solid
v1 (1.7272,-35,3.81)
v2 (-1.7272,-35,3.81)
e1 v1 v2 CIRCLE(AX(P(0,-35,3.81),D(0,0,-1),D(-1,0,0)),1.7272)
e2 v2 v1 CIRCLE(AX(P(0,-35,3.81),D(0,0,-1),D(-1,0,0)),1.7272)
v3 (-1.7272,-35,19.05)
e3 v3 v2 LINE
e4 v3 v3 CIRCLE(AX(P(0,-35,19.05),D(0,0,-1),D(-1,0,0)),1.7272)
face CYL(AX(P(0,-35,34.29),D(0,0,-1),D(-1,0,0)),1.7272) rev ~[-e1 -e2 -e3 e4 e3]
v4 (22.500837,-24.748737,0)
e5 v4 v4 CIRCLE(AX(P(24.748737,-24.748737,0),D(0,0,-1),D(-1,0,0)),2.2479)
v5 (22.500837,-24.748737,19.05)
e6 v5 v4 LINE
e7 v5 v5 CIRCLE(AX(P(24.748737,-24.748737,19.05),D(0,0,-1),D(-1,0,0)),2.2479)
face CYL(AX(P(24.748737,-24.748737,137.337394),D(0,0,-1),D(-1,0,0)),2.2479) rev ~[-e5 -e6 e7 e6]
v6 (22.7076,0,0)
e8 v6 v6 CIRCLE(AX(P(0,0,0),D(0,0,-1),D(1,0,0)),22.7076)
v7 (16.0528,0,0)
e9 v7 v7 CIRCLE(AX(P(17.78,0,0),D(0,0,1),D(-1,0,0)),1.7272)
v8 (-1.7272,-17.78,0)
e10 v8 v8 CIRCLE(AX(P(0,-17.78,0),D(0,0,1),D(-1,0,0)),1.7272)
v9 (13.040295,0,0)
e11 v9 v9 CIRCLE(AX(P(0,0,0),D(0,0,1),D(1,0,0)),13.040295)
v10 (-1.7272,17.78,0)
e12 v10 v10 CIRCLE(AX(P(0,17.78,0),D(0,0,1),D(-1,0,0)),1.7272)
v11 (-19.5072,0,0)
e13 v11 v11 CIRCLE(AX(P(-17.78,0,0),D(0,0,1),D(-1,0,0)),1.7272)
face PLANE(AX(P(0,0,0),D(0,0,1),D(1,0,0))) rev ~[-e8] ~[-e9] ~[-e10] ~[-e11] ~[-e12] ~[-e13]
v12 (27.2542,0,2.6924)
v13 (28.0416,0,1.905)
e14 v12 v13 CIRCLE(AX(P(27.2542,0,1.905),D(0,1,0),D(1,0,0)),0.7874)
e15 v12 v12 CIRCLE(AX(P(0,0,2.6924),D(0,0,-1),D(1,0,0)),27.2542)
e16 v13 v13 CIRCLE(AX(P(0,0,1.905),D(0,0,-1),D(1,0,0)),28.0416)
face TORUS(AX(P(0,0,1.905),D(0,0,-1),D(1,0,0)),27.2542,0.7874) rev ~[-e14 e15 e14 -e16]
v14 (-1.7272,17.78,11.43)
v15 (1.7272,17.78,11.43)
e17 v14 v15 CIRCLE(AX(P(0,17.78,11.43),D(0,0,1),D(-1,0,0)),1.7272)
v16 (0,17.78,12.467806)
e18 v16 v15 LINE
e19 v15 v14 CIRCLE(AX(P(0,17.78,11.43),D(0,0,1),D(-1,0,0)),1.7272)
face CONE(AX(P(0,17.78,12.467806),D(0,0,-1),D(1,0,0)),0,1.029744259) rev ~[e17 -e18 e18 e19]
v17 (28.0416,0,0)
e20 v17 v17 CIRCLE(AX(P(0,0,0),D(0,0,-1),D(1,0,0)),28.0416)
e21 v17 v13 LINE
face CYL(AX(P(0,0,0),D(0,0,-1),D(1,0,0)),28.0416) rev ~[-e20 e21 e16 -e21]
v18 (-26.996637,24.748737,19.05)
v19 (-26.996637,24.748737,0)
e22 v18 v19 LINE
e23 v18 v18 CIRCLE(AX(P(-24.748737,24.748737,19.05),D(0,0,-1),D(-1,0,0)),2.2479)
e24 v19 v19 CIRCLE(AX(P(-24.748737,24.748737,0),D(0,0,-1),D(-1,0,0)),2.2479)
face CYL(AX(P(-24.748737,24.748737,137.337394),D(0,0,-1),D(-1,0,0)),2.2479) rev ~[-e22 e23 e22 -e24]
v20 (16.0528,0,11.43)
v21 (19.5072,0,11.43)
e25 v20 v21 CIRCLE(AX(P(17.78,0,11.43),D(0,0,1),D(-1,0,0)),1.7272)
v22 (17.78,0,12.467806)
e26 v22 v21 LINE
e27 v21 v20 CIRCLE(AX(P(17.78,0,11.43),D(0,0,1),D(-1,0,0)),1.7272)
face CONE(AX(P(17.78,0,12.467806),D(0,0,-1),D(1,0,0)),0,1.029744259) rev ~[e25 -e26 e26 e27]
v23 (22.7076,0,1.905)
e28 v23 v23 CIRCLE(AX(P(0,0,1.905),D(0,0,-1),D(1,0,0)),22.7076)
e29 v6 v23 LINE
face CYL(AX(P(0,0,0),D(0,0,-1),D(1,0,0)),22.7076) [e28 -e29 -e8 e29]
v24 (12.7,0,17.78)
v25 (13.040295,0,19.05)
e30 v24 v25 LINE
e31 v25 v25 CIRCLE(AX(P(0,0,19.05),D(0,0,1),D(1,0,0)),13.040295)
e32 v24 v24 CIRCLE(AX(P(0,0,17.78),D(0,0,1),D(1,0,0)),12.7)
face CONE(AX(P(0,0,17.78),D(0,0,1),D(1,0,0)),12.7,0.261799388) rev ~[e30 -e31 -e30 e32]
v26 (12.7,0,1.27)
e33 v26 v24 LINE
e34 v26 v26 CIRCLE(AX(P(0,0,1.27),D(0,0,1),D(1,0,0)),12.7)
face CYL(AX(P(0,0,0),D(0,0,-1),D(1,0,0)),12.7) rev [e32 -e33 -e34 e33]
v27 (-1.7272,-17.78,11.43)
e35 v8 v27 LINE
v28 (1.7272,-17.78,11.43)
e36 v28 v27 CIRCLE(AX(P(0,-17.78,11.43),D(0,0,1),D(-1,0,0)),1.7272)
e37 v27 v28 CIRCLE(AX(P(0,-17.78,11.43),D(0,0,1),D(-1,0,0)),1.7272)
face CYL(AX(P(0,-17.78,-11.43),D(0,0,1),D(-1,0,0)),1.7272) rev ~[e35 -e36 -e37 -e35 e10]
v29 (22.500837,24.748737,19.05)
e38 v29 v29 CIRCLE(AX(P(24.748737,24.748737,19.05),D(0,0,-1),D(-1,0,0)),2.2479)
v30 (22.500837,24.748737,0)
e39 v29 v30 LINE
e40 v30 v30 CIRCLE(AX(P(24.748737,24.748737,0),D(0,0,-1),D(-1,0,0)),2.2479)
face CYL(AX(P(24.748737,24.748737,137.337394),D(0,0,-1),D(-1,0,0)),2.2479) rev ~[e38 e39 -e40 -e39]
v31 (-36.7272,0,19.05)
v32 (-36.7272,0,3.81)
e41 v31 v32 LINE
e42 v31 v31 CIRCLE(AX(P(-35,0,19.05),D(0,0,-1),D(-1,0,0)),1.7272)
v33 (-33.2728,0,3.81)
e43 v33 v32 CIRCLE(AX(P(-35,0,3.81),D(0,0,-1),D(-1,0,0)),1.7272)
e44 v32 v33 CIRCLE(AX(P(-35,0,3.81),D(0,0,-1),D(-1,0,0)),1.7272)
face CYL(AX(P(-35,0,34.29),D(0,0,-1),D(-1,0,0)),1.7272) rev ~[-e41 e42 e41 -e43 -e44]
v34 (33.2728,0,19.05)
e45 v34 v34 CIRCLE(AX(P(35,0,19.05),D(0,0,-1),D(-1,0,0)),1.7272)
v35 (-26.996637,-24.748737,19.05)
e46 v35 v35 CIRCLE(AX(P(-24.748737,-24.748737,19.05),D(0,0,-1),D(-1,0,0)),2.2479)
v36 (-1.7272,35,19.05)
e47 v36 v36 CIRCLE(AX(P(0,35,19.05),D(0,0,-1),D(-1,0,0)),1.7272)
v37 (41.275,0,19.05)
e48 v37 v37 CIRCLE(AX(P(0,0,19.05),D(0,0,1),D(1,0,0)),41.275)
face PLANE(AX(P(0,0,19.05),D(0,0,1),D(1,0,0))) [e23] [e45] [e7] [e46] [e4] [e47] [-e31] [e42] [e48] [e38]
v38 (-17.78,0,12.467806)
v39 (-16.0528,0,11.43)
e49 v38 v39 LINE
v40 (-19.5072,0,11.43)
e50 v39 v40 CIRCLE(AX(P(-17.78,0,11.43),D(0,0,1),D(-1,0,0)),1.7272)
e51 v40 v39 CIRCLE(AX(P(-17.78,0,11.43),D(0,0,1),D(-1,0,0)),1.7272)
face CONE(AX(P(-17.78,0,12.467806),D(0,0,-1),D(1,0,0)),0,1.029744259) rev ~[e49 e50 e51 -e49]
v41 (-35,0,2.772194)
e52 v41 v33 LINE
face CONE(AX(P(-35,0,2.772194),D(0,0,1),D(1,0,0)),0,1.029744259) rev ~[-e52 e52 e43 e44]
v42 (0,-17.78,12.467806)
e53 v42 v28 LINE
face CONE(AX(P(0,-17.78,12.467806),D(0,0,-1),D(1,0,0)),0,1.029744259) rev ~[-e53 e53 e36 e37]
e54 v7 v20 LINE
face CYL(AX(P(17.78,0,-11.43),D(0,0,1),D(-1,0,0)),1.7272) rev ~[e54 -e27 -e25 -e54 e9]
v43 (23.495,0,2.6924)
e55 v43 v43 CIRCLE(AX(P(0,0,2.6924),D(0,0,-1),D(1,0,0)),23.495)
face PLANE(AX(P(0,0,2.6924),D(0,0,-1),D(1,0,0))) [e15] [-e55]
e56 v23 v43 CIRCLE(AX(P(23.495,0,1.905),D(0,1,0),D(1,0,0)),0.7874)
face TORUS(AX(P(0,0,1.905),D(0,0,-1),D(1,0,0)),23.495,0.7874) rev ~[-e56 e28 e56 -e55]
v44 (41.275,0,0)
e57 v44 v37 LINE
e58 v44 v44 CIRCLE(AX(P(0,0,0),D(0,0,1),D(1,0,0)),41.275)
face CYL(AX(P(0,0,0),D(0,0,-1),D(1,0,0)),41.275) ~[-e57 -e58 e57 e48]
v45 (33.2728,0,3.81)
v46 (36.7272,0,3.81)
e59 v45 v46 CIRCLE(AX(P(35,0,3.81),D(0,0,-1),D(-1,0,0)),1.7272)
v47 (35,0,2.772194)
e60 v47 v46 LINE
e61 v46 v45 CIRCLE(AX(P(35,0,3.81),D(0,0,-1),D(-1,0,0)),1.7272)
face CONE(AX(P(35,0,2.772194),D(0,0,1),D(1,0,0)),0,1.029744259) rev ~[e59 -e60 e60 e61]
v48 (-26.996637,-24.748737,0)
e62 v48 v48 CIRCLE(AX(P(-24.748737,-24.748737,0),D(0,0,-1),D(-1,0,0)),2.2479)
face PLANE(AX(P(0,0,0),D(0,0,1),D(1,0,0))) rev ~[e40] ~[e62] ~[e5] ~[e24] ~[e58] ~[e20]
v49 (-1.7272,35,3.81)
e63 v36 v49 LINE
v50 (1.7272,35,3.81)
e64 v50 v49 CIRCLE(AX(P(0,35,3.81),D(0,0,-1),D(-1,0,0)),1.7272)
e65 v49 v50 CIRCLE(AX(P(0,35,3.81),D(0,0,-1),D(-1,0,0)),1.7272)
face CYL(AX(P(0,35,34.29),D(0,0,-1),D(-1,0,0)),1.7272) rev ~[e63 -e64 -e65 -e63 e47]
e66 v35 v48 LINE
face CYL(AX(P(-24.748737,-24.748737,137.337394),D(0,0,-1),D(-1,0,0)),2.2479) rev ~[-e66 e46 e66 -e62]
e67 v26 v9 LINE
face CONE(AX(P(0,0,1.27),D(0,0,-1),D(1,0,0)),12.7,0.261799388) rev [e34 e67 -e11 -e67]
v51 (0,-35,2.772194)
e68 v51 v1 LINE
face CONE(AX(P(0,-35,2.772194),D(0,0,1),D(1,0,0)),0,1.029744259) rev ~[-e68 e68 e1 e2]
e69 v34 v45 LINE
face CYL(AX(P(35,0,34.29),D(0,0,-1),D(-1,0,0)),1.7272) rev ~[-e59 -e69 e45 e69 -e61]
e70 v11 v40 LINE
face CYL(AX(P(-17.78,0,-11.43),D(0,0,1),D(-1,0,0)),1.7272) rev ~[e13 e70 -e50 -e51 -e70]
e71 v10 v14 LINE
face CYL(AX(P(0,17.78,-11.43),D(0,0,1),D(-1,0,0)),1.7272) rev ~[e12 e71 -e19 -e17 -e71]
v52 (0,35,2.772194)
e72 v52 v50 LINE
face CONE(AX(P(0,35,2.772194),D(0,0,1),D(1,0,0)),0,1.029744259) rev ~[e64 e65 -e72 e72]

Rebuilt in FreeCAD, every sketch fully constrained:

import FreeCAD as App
import Part
import Sketcher

V = App.Vector
Q = App.Units.Quantity


def edges_at(feature, points):
    """Names of the edges that pass closest to the given points."""
    edges = feature.Shape.Edges
    near = lambda p: min(range(len(edges)), key=lambda i: edges[i].distToShape(Part.Vertex(*p))[0])
    return sorted({f"Edge{near(p) + 1}" for p in points})

doc = App.newDocument("Part")
params = doc.addObject("Spreadsheet::Sheet", "Params")
for row, (alias, value) in enumerate([
    ("sketch1_diameter", "1 in"),
    ("sketch1_diameter2", "3.25 in"),
    ("pad1_length", "0.75 in"),
    ("chamfer_size", "0.05 in"),
    ("chamfer_size2", "0.340295 mm"),
    ("sketch2_diameter", "0.136 in"),
    ("hole_diameter", "0.136 in"),
    ("hole_depth", "0.45 in"),
    ("sketch3_diameter", "0.136 in"),
    ("hole2_diameter", "0.136 in"),
    ("hole2_depth", "0.6 in"),
    ("sketch4_diameter", "0.177 in"),
    ("hole3_diameter", "0.177 in"),
    ("sketch5_diameter", "2.208 in"),
    ("sketch5_diameter2", "1.788 in"),
    ("pocket1_length", "0.106 in"),
    ("fillet_radius", "0.031 in"),
], start=1):
    params.set(f"A{row}", alias)
    params.set(f"B{row}", "=" + value)
    params.setAlias(f"B{row}", alias)

body = doc.addObject("PartDesign::Body", "Body")

# Sketch on XY plane
sketch1 = body.newObject("Sketcher::SketchObject", "Sketch")
sketch1.AttachmentSupport = (doc.getObject("XY_Plane"), [""])
sketch1.MapMode = "FlatFace"
sketch1.addGeometry(Part.Circle(V(0, 0, 0), V(0, 0, 1), 41), False)
sketch1.addGeometry(Part.Circle(V(0, 0, 0), V(0, 0, 1), 13), False)
sketch1.addConstraint(Sketcher.Constraint("Coincident", 0, 3, -1, 1))
sketch1.addConstraint(Sketcher.Constraint("Coincident", 1, 3, -1, 1))
sketch1.addConstraint(Sketcher.Constraint("Diameter", 1, Q("1 in")))
sketch1.addConstraint(Sketcher.Constraint("Diameter", 0, Q("3.25 in")))
sketch1.setExpression("Constraints[2]", "Params.sketch1_diameter")
sketch1.setExpression("Constraints[3]", "Params.sketch1_diameter2")
pad1 = body.newObject("PartDesign::Pad", "Pad")
pad1.Profile = sketch1
pad1.setExpression("Length", "Params.pad1_length")
doc.recompute()

chamfer = body.newObject("PartDesign::Chamfer", "Chamfer")
chamfer.Base = (pad1, edges_at(pad1, [(-12.7, 0, 19.05), (-12.7, 0, 0)]))
chamfer.ChamferType = "Two distances"
chamfer.setExpression("Size", "Params.chamfer_size")
chamfer.setExpression("Size2", "Params.chamfer_size2")

# Sketch on XY plane
sketch2 = body.newObject("Sketcher::SketchObject", "Sketch001")
sketch2.AttachmentSupport = (doc.getObject("XY_Plane"), [""])
sketch2.MapMode = "FlatFace"
sketch2.addGeometry(Part.Circle(V(0, 17.8, 0), V(0, 0, 1), 1.7), False)
sketch2.addGeometry(Part.Circle(V(-17.8, 0, 0), V(0, 0, 1), 1.7), False)
sketch2.addGeometry(Part.Circle(V(0, -17.8, 0), V(0, 0, 1), 1.7), False)
sketch2.addGeometry(Part.Circle(V(17.8, 0, 0), V(0, 0, 1), 1.7), False)
sketch2.addConstraint(Sketcher.Constraint("Equal", 0, 1))
sketch2.addConstraint(Sketcher.Constraint("Equal", 1, 2))
sketch2.addConstraint(Sketcher.Constraint("Equal", 2, 3))
sketch2.addConstraint(Sketcher.Constraint("Symmetric", 0, 3, 2, 3, -1, 1))
sketch2.addConstraint(Sketcher.Constraint("Symmetric", 1, 3, 3, 3, -1, 1))
sketch2.addConstraint(Sketcher.Constraint("PointOnObject", 0, 3, -2))
sketch2.addConstraint(Sketcher.Constraint("PointOnObject", 1, 3, -1))
sketch2.addConstraint(Sketcher.Constraint("Diameter", 0, Q("0.136 in")))
sketch2.addConstraint(Sketcher.Constraint("DistanceY", -1, 1, 0, 3, Q("0.7 in")))
sketch2.addConstraint(Sketcher.Constraint("DistanceX", 1, 3, -1, 1, Q("0.7 in")))
sketch2.setExpression("Constraints[7]", "Params.sketch2_diameter")
doc.recompute()
hole = body.newObject("PartDesign::Hole", "Hole")
hole.Profile = sketch2
hole.ThreadType = "None"
hole.setExpression("Diameter", "Params.hole_diameter")
hole.DepthType = "Dimension"
hole.setExpression("Depth", "Params.hole_depth")
hole.DrillPoint = "Angled"
hole.DrillPointAngle = 118
hole.Reversed = True

# Sketch on XY plane
sketch3 = body.newObject("Sketcher::SketchObject", "Sketch002")
sketch3.AttachmentSupport = (doc.getObject("XY_Plane"), [""])
sketch3.MapMode = "FlatFace"
sketch3.AttachmentOffset = App.Placement(V(0, 0, 0.75 * 25.4), App.Rotation())
sketch3.addGeometry(Part.Circle(V(35, 0, 0), V(0, 0, 1), 1.7), False)
sketch3.addGeometry(Part.Circle(V(0, -35, 0), V(0, 0, 1), 1.7), False)
sketch3.addGeometry(Part.Circle(V(-35, 0, 0), V(0, 0, 1), 1.7), False)
sketch3.addGeometry(Part.Circle(V(0, 35, 0), V(0, 0, 1), 1.7), False)
sketch3.addConstraint(Sketcher.Constraint("Equal", 0, 1))
sketch3.addConstraint(Sketcher.Constraint("Equal", 1, 2))
sketch3.addConstraint(Sketcher.Constraint("Equal", 2, 3))
sketch3.addConstraint(Sketcher.Constraint("Symmetric", 0, 3, 2, 3, -1, 1))
sketch3.addConstraint(Sketcher.Constraint("Symmetric", 1, 3, 3, 3, -1, 1))
sketch3.addConstraint(Sketcher.Constraint("PointOnObject", 0, 3, -1))
sketch3.addConstraint(Sketcher.Constraint("PointOnObject", 1, 3, -2))
sketch3.addConstraint(Sketcher.Constraint("Diameter", 0, Q("0.136 in")))
sketch3.addConstraint(Sketcher.Constraint("DistanceX", -1, 1, 0, 3, 35.0))
sketch3.addConstraint(Sketcher.Constraint("DistanceY", 1, 3, -1, 1, 35.0))
sketch3.setExpression("Constraints[7]", "Params.sketch3_diameter")
doc.recompute()
hole2 = body.newObject("PartDesign::Hole", "Hole001")
hole2.Profile = sketch3
hole2.ThreadType = "None"
hole2.setExpression("Diameter", "Params.hole2_diameter")
hole2.DepthType = "Dimension"
hole2.setExpression("Depth", "Params.hole2_depth")
hole2.DrillPoint = "Angled"
hole2.DrillPointAngle = 118

# Sketch on XY plane
sketch4 = body.newObject("Sketcher::SketchObject", "Sketch003")
sketch4.AttachmentSupport = (doc.getObject("XY_Plane"), [""])
sketch4.MapMode = "FlatFace"
sketch4.AttachmentOffset = App.Placement(V(0, 0, 0.75 * 25.4), App.Rotation())
sketch4.addGeometry(Part.Circle(V(24.7, -24.7, 0), V(0, 0, 1), 2.2), False)
sketch4.addGeometry(Part.Circle(V(-24.7, -24.7, 0), V(0, 0, 1), 2.2), False)
sketch4.addGeometry(Part.Circle(V(-24.7, 24.7, 0), V(0, 0, 1), 2.2), False)
sketch4.addGeometry(Part.Circle(V(24.7, 24.7, 0), V(0, 0, 1), 2.2), False)
sketch4.addConstraint(Sketcher.Constraint("Equal", 0, 1))
sketch4.addConstraint(Sketcher.Constraint("Equal", 1, 2))
sketch4.addConstraint(Sketcher.Constraint("Equal", 2, 3))
sketch4.addConstraint(Sketcher.Constraint("Symmetric", 0, 3, 2, 3, -1, 1))
sketch4.addConstraint(Sketcher.Constraint("Symmetric", 1, 3, 3, 3, -1, 1))
sketch4.addConstraint(Sketcher.Constraint("Symmetric", 0, 3, 1, 3, -2))
sketch4.addConstraint(Sketcher.Constraint("Diameter", 0, Q("0.177 in")))
sketch4.addConstraint(Sketcher.Constraint("DistanceX", -1, 1, 0, 3, 24.748737))
sketch4.addConstraint(Sketcher.Constraint("DistanceY", 0, 3, -1, 1, 24.748737))
sketch4.setExpression("Constraints[6]", "Params.sketch4_diameter")
doc.recompute()
hole3 = body.newObject("PartDesign::Hole", "Hole002")
hole3.Profile = sketch4
hole3.ThreadType = "None"
hole3.setExpression("Diameter", "Params.hole3_diameter")
hole3.DepthType = "ThroughAll"

# Sketch on XY plane
sketch5 = body.newObject("Sketcher::SketchObject", "Sketch004")
sketch5.AttachmentSupport = (doc.getObject("XY_Plane"), [""])
sketch5.MapMode = "FlatFace"
sketch5.addGeometry(Part.Circle(V(0, 0, 0), V(0, 0, 1), 28), False)
sketch5.addGeometry(Part.Circle(V(0, 0, 0), V(0, 0, 1), 23), False)
sketch5.addConstraint(Sketcher.Constraint("Coincident", 0, 3, -1, 1))
sketch5.addConstraint(Sketcher.Constraint("Coincident", 1, 3, -1, 1))
sketch5.addConstraint(Sketcher.Constraint("Diameter", 0, Q("2.208 in")))
sketch5.addConstraint(Sketcher.Constraint("Diameter", 1, Q("1.788 in")))
sketch5.setExpression("Constraints[2]", "Params.sketch5_diameter")
sketch5.setExpression("Constraints[3]", "Params.sketch5_diameter2")
pocket1 = body.newObject("PartDesign::Pocket", "Pocket")
pocket1.Profile = sketch5
pocket1.setExpression("Length", "Params.pocket1_length")
pocket1.Reversed = True
doc.recompute()

fillet = body.newObject("PartDesign::Fillet", "Fillet")
fillet.Base = (pocket1, edges_at(pocket1, [(-22.708, 0, 2.692), (-28.042, 0, 2.692)]))
fillet.setExpression("Radius", "Params.fillet_radius")

doc.recompute()
